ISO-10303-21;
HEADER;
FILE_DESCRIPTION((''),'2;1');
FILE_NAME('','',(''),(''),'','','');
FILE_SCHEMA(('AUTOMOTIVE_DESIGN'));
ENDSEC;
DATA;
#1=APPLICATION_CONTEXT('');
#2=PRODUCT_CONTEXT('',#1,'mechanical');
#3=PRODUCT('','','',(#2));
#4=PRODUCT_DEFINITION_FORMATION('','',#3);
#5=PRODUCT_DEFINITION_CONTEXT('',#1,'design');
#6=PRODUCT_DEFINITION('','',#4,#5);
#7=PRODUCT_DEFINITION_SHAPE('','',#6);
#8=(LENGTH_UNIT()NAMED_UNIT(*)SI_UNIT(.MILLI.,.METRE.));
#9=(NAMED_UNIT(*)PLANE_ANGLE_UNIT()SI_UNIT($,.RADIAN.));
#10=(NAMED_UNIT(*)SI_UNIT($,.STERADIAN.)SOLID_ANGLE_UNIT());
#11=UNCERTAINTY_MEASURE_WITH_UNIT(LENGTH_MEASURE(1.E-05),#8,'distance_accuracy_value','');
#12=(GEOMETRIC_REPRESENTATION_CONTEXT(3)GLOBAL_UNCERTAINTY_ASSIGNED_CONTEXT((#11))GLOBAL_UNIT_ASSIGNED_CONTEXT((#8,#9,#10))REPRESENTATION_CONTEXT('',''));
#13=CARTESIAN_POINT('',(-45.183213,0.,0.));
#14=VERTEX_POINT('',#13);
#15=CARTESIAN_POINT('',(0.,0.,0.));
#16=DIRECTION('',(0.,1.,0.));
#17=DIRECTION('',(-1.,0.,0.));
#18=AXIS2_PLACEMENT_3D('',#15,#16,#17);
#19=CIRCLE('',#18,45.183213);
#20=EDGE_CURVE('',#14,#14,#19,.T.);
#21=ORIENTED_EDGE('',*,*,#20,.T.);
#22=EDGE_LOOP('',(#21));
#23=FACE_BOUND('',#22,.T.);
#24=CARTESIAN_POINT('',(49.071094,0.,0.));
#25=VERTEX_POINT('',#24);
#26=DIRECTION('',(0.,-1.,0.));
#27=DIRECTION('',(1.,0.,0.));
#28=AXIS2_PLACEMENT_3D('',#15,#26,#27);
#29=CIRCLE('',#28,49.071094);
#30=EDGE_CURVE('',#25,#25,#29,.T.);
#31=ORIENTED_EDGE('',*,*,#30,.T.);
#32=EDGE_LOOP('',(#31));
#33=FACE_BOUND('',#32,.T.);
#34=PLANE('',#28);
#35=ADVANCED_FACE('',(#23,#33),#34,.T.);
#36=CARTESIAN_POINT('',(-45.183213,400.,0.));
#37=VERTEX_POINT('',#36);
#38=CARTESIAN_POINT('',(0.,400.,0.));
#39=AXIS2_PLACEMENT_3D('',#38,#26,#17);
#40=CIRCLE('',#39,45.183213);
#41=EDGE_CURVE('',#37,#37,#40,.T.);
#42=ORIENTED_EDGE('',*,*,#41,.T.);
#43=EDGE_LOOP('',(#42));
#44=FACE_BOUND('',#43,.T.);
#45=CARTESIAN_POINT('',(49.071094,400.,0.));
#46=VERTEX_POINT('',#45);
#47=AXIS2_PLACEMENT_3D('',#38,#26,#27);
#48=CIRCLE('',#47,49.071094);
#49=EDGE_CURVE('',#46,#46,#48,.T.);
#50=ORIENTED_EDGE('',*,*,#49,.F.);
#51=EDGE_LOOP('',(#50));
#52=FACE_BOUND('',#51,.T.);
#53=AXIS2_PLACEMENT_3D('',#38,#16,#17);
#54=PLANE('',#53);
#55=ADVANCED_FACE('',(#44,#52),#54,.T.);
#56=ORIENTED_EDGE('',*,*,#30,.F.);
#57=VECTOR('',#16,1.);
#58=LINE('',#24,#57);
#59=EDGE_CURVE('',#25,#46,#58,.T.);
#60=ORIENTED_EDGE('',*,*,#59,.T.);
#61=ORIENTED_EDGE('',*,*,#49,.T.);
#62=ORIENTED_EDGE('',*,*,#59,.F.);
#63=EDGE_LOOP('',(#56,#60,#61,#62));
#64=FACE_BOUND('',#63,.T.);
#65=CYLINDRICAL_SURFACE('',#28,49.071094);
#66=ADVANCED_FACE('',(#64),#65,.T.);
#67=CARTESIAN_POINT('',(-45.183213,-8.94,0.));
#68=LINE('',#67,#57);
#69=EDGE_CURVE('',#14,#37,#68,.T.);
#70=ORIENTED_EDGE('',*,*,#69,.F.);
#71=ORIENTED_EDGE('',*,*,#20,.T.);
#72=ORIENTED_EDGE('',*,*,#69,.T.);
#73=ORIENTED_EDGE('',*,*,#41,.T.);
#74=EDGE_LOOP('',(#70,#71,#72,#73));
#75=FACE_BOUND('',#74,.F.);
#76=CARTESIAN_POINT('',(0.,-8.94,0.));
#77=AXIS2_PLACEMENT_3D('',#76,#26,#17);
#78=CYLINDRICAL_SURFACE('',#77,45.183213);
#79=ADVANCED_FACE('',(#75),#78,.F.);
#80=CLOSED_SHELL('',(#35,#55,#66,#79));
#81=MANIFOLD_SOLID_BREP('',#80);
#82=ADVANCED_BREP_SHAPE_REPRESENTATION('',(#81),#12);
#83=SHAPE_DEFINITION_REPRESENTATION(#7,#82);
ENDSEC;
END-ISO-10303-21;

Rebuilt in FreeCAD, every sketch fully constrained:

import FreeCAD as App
import Part
import Sketcher
Q = App.Units.Quantity

doc = App.newDocument("Part")
params = doc.addObject("Spreadsheet::Sheet", "Params")
for row, (alias, value) in enumerate([
    ("pad1_length", "400 mm"),
    ("pad2_length", "16.1 in"),
    ("pocket1_length", "19.7 in"),
], start=1):
    params.set(f"A{row}", alias)
    params.set(f"B{row}", "=" + value)
    params.setAlias(f"B{row}", alias)

body = doc.addObject("PartDesign::Body", "Body")

sketch1 = body.newObject("Sketcher::SketchObject", "Sketch")
sketch1.AttachmentSupport = (doc.getObject("XZ_Plane"), [""])
sketch1.MapMode = "FlatFace"
sketch1.addGeometry(Part.Circle(App.Vector(0, 0, 0), App.Vector(0, 0, 1), 49), False)
sketch1.addConstraint([
    Sketcher.Constraint("Coincident", 0, 3, -1, 1),
    Sketcher.Constraint("Diameter", 0, Q("98.142188 mm")),
])
pad1 = body.newObject("PartDesign::Pad", "Pad")
pad1.Profile = sketch1
pad1.setExpression("Length", "Params.pad1_length")
pad1.Reversed = True

sketch2 = body.newObject("Sketcher::SketchObject", "Sketch001")
sketch2.AttachmentSupport = (doc.getObject("XZ_Plane"), [""])
sketch2.MapMode = "FlatFace"
sketch2.AttachmentOffset = App.Placement(App.Vector(0, 0, -400), App.Rotation())
sketch2.addGeometry(Part.Circle(App.Vector(0, 0, 0), App.Vector(0, 0, 1), 45), False)
sketch2.addConstraint([
    Sketcher.Constraint("Coincident", 0, 3, -1, 1),
    Sketcher.Constraint("Diameter", 0, Q("90.366426 mm")),
])
pad2 = body.newObject("PartDesign::Pad", "Pad001")
pad2.Profile = sketch2
pad2.setExpression("Length", "Params.pad2_length")

sketch3 = body.newObject("Sketcher::SketchObject", "Sketch002")
sketch3.AttachmentSupport = (doc.getObject("XZ_Plane"), [""])
sketch3.MapMode = "FlatFace"
sketch3.AttachmentOffset = App.Placement(App.Vector(0, 0, 8.94), App.Rotation())
sketch3.addGeometry(Part.Circle(App.Vector(0, 0, 0), App.Vector(0, 0, 1), 45), False)
sketch3.addConstraint([
    Sketcher.Constraint("Coincident", 0, 3, -1, 1),
    Sketcher.Constraint("Diameter", 0, Q("90.366426 mm")),
])
pocket1 = body.newObject("PartDesign::Pocket", "Pocket")
pocket1.Profile = sketch3
pocket1.setExpression("Length", "Params.pocket1_length")

doc.recompute()
